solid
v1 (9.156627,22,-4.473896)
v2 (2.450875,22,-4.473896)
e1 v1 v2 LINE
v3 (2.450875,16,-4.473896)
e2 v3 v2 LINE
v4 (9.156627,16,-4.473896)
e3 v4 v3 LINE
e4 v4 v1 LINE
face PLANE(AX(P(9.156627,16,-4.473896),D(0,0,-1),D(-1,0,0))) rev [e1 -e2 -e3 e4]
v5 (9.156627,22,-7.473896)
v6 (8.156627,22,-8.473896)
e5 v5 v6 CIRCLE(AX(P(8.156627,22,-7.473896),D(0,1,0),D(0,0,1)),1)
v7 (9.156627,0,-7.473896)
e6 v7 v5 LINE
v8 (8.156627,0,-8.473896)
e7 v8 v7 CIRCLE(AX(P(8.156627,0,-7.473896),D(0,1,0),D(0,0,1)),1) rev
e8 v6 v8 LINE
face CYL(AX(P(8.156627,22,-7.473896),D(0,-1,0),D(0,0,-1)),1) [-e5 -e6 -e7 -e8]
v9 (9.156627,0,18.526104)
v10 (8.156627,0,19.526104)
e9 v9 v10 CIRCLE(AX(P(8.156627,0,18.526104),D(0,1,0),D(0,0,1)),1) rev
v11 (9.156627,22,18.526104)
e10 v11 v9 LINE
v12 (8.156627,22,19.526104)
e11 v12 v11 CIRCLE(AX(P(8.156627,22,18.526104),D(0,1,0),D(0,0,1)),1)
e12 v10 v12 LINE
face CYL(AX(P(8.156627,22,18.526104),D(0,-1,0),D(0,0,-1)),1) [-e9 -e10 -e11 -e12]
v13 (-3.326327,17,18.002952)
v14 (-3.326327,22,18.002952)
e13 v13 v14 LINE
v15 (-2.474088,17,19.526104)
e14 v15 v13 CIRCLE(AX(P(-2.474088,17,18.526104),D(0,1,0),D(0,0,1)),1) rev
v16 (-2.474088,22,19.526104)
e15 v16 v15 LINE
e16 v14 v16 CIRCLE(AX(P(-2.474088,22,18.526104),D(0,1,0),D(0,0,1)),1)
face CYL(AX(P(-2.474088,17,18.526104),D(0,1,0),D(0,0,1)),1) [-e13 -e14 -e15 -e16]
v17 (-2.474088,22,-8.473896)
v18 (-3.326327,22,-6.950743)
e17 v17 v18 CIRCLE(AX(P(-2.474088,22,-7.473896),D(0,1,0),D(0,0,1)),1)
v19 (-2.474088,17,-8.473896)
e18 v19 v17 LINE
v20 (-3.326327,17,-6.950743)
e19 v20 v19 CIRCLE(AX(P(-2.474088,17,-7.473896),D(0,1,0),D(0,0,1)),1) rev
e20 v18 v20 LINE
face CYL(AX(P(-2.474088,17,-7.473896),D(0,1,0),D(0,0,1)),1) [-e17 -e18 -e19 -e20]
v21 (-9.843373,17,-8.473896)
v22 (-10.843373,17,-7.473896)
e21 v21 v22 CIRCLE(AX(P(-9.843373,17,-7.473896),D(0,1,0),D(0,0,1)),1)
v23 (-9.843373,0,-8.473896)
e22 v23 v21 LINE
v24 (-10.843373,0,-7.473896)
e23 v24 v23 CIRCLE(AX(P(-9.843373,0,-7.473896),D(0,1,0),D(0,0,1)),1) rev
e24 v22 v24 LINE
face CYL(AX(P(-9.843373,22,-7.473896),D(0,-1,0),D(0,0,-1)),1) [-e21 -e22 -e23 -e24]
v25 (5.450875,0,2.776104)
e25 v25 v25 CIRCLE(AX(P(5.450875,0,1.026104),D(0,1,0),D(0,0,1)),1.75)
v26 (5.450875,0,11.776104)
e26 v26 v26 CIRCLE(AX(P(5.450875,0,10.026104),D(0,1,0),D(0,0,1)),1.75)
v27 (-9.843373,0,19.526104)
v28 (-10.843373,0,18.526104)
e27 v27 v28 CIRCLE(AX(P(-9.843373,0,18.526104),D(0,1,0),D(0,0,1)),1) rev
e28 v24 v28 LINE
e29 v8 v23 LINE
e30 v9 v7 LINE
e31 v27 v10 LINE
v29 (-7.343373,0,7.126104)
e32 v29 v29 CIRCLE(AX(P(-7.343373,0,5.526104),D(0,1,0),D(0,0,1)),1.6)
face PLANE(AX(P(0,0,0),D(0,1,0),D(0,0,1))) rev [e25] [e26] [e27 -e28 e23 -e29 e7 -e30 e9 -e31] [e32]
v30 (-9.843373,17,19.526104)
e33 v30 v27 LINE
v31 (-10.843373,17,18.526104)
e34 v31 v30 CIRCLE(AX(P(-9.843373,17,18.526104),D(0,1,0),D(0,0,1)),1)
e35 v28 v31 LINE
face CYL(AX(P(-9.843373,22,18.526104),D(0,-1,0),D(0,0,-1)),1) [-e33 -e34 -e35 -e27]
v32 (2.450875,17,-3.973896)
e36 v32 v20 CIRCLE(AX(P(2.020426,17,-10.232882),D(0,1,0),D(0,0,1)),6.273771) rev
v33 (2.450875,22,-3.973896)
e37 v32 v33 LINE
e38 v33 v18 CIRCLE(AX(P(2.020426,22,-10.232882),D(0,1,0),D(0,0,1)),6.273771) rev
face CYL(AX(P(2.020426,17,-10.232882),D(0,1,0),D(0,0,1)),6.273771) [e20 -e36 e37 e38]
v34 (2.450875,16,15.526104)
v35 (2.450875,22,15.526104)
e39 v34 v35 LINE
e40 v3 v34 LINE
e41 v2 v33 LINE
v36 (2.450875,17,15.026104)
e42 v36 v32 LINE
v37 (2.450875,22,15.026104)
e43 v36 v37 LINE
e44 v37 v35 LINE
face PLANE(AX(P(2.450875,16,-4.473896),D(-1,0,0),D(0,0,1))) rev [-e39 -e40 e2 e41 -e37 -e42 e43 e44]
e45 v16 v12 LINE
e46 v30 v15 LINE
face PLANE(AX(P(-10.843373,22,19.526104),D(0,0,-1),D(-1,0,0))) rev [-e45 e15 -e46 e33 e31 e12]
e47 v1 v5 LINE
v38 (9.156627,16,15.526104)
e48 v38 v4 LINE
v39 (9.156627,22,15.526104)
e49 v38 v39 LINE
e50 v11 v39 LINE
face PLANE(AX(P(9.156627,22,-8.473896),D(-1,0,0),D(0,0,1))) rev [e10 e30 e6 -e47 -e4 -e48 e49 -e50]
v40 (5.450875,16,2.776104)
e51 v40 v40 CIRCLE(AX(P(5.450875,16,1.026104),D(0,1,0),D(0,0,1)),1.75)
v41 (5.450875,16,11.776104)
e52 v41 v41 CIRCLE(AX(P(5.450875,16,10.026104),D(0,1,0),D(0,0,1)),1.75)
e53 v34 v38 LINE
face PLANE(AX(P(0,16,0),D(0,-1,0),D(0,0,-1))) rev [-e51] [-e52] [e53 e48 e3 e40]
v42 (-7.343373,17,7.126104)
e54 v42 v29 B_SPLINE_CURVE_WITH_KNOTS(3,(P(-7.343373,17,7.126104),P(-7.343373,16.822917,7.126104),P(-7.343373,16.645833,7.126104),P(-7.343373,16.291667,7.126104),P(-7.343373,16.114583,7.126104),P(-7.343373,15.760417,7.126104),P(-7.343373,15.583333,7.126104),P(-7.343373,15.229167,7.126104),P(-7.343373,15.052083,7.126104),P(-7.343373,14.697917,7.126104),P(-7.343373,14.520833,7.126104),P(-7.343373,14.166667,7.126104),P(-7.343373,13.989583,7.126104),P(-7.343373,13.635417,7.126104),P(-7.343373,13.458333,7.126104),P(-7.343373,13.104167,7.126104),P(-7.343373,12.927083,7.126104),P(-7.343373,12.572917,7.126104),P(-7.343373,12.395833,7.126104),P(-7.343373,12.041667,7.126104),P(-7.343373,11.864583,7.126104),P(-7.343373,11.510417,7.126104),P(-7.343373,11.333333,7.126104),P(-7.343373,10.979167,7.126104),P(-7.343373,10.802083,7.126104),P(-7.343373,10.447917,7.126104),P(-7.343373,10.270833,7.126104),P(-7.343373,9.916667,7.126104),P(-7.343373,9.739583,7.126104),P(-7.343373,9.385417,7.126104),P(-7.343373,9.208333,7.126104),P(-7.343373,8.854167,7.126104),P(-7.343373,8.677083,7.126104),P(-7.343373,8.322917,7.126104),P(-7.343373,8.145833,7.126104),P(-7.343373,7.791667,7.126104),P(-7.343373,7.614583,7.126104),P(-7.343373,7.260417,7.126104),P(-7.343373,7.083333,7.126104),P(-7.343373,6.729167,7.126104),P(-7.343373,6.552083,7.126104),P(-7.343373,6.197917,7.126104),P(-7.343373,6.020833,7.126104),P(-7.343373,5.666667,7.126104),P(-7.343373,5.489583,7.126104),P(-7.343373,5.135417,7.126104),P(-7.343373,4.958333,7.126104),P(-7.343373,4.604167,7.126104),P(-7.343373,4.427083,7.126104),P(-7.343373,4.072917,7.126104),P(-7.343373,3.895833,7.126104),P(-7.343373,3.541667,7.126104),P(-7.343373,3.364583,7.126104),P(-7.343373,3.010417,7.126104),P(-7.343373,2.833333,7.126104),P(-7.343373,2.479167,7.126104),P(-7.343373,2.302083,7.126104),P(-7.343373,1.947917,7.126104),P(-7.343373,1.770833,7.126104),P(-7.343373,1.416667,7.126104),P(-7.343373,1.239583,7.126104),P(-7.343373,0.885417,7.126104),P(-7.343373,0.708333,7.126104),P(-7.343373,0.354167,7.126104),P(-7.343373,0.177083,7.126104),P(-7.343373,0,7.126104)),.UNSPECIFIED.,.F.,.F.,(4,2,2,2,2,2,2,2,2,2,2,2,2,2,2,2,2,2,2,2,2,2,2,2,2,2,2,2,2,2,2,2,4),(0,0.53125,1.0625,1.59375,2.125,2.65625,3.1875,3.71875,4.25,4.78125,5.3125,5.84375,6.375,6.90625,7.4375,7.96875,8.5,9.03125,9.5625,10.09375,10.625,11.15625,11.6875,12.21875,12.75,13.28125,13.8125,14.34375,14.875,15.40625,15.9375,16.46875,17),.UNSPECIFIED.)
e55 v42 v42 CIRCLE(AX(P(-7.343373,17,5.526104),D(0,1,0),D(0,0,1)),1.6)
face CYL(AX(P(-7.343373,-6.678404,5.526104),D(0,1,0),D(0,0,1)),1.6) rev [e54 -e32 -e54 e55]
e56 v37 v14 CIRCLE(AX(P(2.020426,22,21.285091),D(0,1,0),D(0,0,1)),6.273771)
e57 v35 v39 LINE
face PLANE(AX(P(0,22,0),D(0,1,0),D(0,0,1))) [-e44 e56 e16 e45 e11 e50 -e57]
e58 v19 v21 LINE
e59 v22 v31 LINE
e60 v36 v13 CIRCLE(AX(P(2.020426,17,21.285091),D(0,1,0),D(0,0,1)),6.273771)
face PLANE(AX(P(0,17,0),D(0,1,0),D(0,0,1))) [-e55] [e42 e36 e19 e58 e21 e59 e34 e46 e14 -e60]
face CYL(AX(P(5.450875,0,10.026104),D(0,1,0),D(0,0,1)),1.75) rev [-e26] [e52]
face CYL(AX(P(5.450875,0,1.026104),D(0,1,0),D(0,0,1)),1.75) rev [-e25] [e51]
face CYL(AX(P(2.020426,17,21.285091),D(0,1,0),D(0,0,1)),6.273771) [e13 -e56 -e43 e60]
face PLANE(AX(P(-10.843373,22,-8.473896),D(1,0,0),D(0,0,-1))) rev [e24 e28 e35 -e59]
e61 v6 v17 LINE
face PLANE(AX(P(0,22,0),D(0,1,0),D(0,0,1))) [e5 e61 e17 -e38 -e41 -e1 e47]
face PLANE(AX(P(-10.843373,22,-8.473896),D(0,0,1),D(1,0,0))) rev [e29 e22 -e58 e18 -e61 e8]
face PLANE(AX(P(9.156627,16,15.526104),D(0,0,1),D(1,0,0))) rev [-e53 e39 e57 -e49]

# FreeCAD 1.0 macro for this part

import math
import FreeCAD as App
import Part
import Sketcher


def edges_at(feature, points):
    """Names of the edges that pass closest to the given points."""
    edges = feature.Shape.Edges
    near = lambda p: min(range(len(edges)), key=lambda i: edges[i].distToShape(Part.Vertex(*p))[0])
    return sorted({f"Edge{near(p) + 1}" for p in points})


def add_polygon(sketch, points):
    """Adds a closed chain of lines whose ends are joined by coincident constraints."""
    first, n = sketch.GeometryCount, len(points)
    for a, b in zip(points, points[1:] + points[:1]):
        sketch.addGeometry(Part.LineSegment(App.Vector(*a, 0), App.Vector(*b, 0)), False)
    for i in range(n):
        sketch.addConstraint(Sketcher.Constraint("Coincident", first + i, 2, first + (i + 1) % n, 1))

doc = App.newDocument("Part")
body = doc.addObject("PartDesign::Body", "Body")

sketch1 = body.newObject("Sketcher::SketchObject", "Sketch")
sketch1.AttachmentSupport = (doc.getObject("XZ_Plane"), [""])
sketch1.MapMode = "FlatFace"
add_polygon(sketch1, [(-11, -8), (-11, 20), (9, 20), (9, -8)])
sketch1.addConstraint(Sketcher.Constraint("Vertical", 0))
sketch1.addConstraint(Sketcher.Constraint("Horizontal", 1))
sketch1.addConstraint(Sketcher.Constraint("Vertical", 2))
sketch1.addConstraint(Sketcher.Constraint("Horizontal", 3))
sketch1.addConstraint(Sketcher.Constraint("DistanceX", 1, 1, 1, 2, 20.0))
sketch1.addConstraint(Sketcher.Constraint("DistanceY", 0, 1, 0, 2, 28.0))
sketch1.addConstraint(Sketcher.Constraint("DistanceX", 0, 2, -1, 1, 10.843373))
sketch1.addConstraint(Sketcher.Constraint("DistanceY", -1, 1, 0, 2, 19.526104))
pad1 = body.newObject("PartDesign::Pad", "Pad")
pad1.Profile = sketch1
pad1.Length = 22
pad1.Reversed = True

sketch2 = body.newObject("Sketcher::SketchObject", "Sketch001")
sketch2.AttachmentSupport = (doc.getObject("XZ_Plane"), [""])
sketch2.MapMode = "FlatFace"
sketch2.AttachmentOffset = App.Placement(App.Vector(0, 0, -22), App.Rotation())
add_polygon(sketch2, [(2, -4), (2, 16), (9, 16), (9, -4)])
sketch2.addConstraint(Sketcher.Constraint("Vertical", 0))
sketch2.addConstraint(Sketcher.Constraint("Horizontal", 1))
sketch2.addConstraint(Sketcher.Constraint("Vertical", 2))
sketch2.addConstraint(Sketcher.Constraint("Horizontal", 3))
sketch2.addConstraint(Sketcher.Constraint("DistanceY", 0, 1, 0, 2, 20.0))
sketch2.addConstraint(Sketcher.Constraint("DistanceX", 1, 1, 1, 2, 6.705751))
sketch2.addConstraint(Sketcher.Constraint("DistanceX", -1, 1, 0, 2, 2.450875))
sketch2.addConstraint(Sketcher.Constraint("DistanceY", -1, 1, 0, 2, 15.526104))
pocket1 = body.newObject("PartDesign::Pocket", "Pocket")
pocket1.Profile = sketch2
pocket1.Length = 6
pocket1.Reversed = True

sketch3 = body.newObject("Sketcher::SketchObject", "Sketch002")
sketch3.AttachmentSupport = (doc.getObject("XZ_Plane"), [""])
sketch3.MapMode = "FlatFace"
sketch3.AttachmentOffset = App.Placement(App.Vector(0, 0, -22), App.Rotation())
sketch3.addGeometry(Part.LineSegment(App.Vector(2.5, 15, 0), App.Vector(2.5, -4, 0)), False)
sketch3.addGeometry(Part.ArcOfCircle(Part.Circle(App.Vector(2, -10.2, 0), App.Vector(0, 0, 1), 6.3), math.radians(86.07), math.radians(93.93)), False)
sketch3.addGeometry(Part.ArcOfCircle(Part.Circle(App.Vector(2, -10.2, 0), App.Vector(0, 0, 1), 6.3), math.radians(94), math.radians(164)), False)
sketch3.addGeometry(Part.LineSegment(App.Vector(-4, -8.5, 0), App.Vector(-10.8, -8.5, 0)), False)
sketch3.addGeometry(Part.LineSegment(App.Vector(-10.8, -8.5, 0), App.Vector(-10.8, 19.5, 0)), False)
sketch3.addGeometry(Part.LineSegment(App.Vector(-10.8, 19.5, 0), App.Vector(-4, 19.5, 0)), False)
sketch3.addGeometry(Part.ArcOfCircle(Part.Circle(App.Vector(2, 21.3, 0), App.Vector(0, 0, 1), 6.3), math.radians(-164), math.radians(-94)), False)
sketch3.addGeometry(Part.ArcOfCircle(Part.Circle(App.Vector(2, 21.3, 0), App.Vector(0, 0, 1), 6.3), math.radians(-93.93), math.radians(-86.07)), False)
sketch3.addConstraint(Sketcher.Constraint("Coincident", 0, 2, 1, 1))
sketch3.addConstraint(Sketcher.Constraint("Tangent", 1, 2, 2, 1))
sketch3.addConstraint(Sketcher.Constraint("Coincident", 2, 2, 3, 1))
sketch3.addConstraint(Sketcher.Constraint("Coincident", 3, 2, 4, 1))
sketch3.addConstraint(Sketcher.Constraint("Coincident", 4, 2, 5, 1))
sketch3.addConstraint(Sketcher.Constraint("Coincident", 5, 2, 6, 1))
sketch3.addConstraint(Sketcher.Constraint("Tangent", 6, 2, 7, 1))
sketch3.addConstraint(Sketcher.Constraint("Coincident", 7, 2, 0, 1))
sketch3.addConstraint(Sketcher.Constraint("Vertical", 0))
sketch3.addConstraint(Sketcher.Constraint("Horizontal", 3))
sketch3.addConstraint(Sketcher.Constraint("Vertical", 4))
sketch3.addConstraint(Sketcher.Constraint("Horizontal", 5))
sketch3.addConstraint(Sketcher.Constraint("Equal", 1, 2))
sketch3.addConstraint(Sketcher.Constraint("Equal", 2, 6))
sketch3.addConstraint(Sketcher.Constraint("Equal", 6, 7))
sketch3.addConstraint(Sketcher.Constraint("Horizontal", 0, 2, 1, 2))
sketch3.addConstraint(Sketcher.Constraint("Horizontal", 6, 2, 7, 2))
sketch3.addConstraint(Sketcher.Constraint("Vertical", 2, 3, 6, 3))
sketch3.addConstraint(Sketcher.Constraint("Vertical", 2, 2, 5, 2))
sketch3.addConstraint(Sketcher.Constraint("DistanceY", 0, 2, 0, 1, 19.0))
sketch3.addConstraint(Sketcher.Constraint("DistanceY", 4, 1, 4, 2, 28.0))
sketch3.addConstraint(Sketcher.Constraint("Radius", 1, 6.273771))
sketch3.addConstraint(Sketcher.Constraint("DistanceX", 3, 2, 3, 1, 6.84166))
sketch3.addConstraint(Sketcher.Constraint("DistanceX", 1, 2, 0, 2, 0.860899))
sketch3.addConstraint(Sketcher.Constraint("DistanceY", -1, 1, 6, 3, 21.285091))
sketch3.addConstraint(Sketcher.Constraint("DistanceX", -1, 1, 1, 3, 2.020426))
pocket2 = body.newObject("PartDesign::Pocket", "Pocket001")
pocket2.Profile = sketch3
pocket2.Length = 5
pocket2.Reversed = True

sketch4 = body.newObject("Sketcher::SketchObject", "Sketch003")
sketch4.AttachmentSupport = (doc.getObject("XZ_Plane"), [""])
sketch4.MapMode = "FlatFace"
sketch4.AttachmentOffset = App.Placement(App.Vector(0, 0, -17), App.Rotation())
sketch4.addGeometry(Part.Circle(App.Vector(-7.3, 5.5, 0), App.Vector(0, 0, 1), 1.6), False)
sketch4.addConstraint(Sketcher.Constraint("Diameter", 0, 3.2))
sketch4.addConstraint(Sketcher.Constraint("DistanceX", 0, 3, -1, 1, 7.343373))
sketch4.addConstraint(Sketcher.Constraint("DistanceY", -1, 1, 0, 3, 5.526104))
pocket3 = body.newObject("PartDesign::Pocket", "Pocket002")
pocket3.Profile = sketch4
pocket3.Length = 23.678404
pocket3.Reversed = True
doc.recompute()

fillet = body.newObject("PartDesign::Fillet", "Fillet")
fillet.Base = (pocket3, edges_at(pocket3, [
    (-10.843, 8.5, -8.474),
    (-10.843, 8.5, 19.526),
    (-4.002, 19.5, 19.526),
    (-4.002, 19.5, -8.474),
    (9.157, 11, -8.474),
    (9.157, 11, 19.526),
]))
fillet.Radius = 1

sketch5 = body.newObject("Sketcher::SketchObject", "Sketch004")
sketch5.AttachmentSupport = (doc.getObject("XZ_Plane"), [""])
sketch5.MapMode = "FlatFace"
sketch5.AttachmentOffset = App.Placement(App.Vector(0, 0, -16), App.Rotation())
sketch5.addGeometry(Part.Circle(App.Vector(5.5, 1, 0), App.Vector(0, 0, 1), 1.8), False)
sketch5.addGeometry(Part.Circle(App.Vector(5.5, 10, 0), App.Vector(0, 0, 1), 1.8), False)
sketch5.addConstraint(Sketcher.Constraint("Equal", 0, 1))
sketch5.addConstraint(Sketcher.Constraint("Vertical", 0, 3, 1, 3))
sketch5.addConstraint(Sketcher.Constraint("Diameter", 0, 3.5))
sketch5.addConstraint(Sketcher.Constraint("DistanceY", 0, 3, 1, 3, 9.0))
sketch5.addConstraint(Sketcher.Constraint("DistanceX", -1, 1, 0, 3, 5.450875))
sketch5.addConstraint(Sketcher.Constraint("DistanceY", -1, 1, 0, 3, 1.026104))
pocket4 = body.newObject("PartDesign::Pocket", "Pocket003")
pocket4.Profile = sketch5
pocket4.Type = "ThroughAll"
pocket4.Reversed = True

doc.recompute()
